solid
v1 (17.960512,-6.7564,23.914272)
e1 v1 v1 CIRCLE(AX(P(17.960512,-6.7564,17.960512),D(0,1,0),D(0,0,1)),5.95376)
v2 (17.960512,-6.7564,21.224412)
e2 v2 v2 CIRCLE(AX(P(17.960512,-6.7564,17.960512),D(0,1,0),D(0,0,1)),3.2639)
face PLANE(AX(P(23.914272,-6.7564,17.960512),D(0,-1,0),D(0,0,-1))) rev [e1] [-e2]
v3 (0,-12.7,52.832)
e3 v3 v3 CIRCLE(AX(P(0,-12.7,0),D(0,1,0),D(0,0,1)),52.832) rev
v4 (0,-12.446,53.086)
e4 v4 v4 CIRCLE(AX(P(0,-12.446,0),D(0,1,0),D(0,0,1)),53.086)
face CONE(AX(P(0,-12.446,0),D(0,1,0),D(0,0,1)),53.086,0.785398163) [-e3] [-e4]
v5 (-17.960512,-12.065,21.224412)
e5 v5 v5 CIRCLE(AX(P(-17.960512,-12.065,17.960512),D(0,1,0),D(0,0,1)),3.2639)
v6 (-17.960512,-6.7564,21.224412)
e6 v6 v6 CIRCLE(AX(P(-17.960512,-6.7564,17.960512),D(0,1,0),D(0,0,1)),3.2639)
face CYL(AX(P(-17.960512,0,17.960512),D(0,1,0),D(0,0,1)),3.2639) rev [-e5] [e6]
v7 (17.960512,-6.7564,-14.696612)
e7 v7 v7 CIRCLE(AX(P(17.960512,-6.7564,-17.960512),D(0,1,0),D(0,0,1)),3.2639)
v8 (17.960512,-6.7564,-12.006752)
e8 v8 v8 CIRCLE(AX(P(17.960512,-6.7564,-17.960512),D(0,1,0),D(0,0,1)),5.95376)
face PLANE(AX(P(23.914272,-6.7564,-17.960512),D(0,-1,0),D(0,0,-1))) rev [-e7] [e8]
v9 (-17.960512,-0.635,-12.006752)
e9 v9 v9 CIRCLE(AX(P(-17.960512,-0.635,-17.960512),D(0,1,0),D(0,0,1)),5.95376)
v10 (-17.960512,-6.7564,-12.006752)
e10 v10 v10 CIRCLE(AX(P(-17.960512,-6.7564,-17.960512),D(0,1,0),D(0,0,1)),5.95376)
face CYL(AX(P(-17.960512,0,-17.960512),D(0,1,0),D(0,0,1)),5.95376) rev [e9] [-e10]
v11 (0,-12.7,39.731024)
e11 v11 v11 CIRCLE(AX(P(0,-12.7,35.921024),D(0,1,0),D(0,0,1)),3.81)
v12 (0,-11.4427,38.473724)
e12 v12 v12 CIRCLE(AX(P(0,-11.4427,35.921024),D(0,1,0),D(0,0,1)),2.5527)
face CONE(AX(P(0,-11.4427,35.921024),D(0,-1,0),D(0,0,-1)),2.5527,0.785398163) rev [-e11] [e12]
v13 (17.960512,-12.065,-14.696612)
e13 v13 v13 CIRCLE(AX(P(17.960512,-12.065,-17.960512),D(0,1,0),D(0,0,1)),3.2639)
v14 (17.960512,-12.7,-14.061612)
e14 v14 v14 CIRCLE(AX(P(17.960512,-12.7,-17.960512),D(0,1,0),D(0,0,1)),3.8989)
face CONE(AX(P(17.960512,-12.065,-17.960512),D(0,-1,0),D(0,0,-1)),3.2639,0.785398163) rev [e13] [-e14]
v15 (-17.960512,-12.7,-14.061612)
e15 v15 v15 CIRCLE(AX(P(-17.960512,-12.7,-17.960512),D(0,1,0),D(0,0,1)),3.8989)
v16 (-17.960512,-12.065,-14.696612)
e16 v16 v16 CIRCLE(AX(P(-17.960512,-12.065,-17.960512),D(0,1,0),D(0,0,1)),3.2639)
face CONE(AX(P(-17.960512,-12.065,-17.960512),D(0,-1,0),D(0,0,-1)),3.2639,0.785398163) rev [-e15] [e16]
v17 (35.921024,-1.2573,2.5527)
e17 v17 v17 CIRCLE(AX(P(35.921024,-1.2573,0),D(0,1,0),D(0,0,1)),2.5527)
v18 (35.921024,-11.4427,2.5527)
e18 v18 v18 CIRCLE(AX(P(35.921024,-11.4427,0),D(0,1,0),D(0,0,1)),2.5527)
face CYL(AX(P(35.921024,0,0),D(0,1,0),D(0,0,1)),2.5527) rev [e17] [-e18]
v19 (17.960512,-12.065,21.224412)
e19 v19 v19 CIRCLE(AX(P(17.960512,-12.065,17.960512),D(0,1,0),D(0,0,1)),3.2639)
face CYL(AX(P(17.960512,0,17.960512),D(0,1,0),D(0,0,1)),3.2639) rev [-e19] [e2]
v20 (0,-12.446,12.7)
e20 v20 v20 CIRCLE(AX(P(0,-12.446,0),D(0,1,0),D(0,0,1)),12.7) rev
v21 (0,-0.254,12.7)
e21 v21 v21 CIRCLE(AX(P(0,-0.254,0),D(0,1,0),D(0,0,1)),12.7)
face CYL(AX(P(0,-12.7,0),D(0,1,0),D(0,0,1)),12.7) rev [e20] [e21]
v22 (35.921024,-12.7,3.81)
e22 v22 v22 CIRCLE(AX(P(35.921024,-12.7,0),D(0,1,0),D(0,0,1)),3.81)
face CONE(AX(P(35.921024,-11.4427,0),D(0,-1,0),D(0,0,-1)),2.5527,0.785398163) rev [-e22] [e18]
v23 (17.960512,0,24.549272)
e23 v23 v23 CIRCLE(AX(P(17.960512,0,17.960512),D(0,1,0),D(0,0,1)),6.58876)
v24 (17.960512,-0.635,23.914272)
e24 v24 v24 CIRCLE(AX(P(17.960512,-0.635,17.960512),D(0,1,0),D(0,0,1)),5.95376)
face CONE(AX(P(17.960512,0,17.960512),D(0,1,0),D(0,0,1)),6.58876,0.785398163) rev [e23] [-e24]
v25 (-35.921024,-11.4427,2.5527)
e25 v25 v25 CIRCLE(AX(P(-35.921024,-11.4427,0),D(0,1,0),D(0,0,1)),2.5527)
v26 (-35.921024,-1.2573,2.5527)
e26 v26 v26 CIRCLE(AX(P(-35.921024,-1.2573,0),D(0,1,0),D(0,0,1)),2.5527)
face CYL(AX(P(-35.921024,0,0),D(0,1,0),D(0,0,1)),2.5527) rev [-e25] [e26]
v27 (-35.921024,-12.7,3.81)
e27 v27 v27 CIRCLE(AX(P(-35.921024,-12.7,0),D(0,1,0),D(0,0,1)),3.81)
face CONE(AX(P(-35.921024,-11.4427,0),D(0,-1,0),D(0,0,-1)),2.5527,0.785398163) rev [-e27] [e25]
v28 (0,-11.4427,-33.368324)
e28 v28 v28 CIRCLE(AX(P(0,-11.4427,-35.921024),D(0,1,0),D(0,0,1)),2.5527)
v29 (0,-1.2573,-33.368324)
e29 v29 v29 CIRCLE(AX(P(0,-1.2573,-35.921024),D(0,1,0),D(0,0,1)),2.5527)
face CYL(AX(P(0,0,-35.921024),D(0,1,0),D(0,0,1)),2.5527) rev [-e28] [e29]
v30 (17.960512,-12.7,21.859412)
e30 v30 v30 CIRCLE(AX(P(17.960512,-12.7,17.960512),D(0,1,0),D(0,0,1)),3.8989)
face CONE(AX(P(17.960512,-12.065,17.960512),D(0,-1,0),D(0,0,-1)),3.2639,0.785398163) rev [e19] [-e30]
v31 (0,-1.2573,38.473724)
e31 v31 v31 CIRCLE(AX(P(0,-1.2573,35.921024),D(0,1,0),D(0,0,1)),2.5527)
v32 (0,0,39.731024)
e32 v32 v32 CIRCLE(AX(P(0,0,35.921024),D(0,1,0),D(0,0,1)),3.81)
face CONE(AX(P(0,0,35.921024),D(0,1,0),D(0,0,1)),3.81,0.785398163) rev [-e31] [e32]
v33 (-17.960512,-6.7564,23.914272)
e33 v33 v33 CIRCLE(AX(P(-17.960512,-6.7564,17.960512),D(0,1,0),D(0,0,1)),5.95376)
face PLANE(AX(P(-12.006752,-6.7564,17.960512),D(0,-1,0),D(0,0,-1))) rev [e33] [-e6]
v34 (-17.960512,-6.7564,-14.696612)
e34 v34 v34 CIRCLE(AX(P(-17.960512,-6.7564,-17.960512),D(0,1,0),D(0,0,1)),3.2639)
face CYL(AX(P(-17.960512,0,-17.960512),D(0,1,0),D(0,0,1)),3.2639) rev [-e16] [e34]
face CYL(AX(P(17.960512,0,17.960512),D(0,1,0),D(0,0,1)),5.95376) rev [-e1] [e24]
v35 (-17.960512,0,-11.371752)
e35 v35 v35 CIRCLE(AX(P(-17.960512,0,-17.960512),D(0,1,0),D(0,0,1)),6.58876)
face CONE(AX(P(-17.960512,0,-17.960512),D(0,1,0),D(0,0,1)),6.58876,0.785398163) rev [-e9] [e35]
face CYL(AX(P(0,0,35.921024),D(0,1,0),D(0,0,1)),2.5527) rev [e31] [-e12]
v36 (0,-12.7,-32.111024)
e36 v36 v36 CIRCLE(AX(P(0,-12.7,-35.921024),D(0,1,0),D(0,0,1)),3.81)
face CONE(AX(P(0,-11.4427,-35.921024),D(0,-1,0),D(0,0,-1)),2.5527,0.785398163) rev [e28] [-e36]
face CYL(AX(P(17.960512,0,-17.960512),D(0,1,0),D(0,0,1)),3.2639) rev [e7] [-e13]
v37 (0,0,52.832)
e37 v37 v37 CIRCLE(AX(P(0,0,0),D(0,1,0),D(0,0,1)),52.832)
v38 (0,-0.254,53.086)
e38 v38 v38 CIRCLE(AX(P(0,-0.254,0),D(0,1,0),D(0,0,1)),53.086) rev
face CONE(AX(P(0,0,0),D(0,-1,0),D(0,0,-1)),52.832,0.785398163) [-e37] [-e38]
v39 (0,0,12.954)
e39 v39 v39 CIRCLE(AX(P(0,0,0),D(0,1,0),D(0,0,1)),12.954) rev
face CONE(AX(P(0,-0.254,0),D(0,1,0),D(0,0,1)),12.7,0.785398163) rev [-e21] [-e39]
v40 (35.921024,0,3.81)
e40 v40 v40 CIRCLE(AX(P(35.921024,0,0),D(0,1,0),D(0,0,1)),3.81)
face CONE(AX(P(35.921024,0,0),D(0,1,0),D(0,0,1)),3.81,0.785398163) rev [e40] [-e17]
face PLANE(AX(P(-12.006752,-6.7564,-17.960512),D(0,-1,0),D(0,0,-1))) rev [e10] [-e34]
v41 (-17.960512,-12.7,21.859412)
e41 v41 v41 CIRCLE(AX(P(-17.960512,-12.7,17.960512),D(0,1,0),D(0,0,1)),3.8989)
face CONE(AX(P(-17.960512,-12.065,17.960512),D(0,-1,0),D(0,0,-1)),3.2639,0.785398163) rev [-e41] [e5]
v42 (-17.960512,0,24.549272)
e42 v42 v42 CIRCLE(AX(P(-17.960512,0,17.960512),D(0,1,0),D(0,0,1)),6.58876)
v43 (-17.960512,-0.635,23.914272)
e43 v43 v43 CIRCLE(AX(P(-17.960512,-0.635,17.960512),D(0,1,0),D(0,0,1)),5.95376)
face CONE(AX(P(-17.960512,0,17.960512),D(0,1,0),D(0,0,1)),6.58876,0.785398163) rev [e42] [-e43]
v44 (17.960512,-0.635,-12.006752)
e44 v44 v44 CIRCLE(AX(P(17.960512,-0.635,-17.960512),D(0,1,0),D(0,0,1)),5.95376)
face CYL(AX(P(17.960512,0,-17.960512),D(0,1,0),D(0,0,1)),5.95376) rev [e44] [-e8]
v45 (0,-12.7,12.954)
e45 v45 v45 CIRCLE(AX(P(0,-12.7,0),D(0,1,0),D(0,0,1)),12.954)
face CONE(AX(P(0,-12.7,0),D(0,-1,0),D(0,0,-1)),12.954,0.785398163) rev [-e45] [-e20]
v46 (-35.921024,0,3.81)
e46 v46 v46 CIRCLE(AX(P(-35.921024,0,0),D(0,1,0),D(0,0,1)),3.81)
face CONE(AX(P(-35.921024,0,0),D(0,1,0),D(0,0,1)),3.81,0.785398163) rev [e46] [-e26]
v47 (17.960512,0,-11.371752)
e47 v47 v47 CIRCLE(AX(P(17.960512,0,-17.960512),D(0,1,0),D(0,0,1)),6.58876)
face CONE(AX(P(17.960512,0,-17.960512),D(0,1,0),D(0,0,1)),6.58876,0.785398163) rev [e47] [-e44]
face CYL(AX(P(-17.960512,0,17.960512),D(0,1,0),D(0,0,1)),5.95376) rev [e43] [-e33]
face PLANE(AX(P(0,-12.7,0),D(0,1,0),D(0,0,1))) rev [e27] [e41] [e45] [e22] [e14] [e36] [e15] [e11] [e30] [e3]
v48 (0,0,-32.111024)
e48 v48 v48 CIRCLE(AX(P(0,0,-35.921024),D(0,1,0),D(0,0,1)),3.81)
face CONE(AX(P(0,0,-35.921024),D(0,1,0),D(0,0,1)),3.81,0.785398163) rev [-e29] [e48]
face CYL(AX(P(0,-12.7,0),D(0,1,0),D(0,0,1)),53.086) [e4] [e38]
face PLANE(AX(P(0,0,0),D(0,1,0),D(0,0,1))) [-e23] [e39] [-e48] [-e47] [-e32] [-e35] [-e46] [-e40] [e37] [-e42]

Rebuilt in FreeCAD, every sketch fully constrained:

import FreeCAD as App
import Part
import Sketcher
Q = App.Units.Quantity


def edges_at(feature, points):
    """Names of the edges that pass closest to the given points."""
    edges = feature.Shape.Edges
    near = lambda p: min(range(len(edges)), key=lambda i: edges[i].distToShape(Part.Vertex(*p))[0])
    return sorted({f"Edge{near(p) + 1}" for p in points})


def add_polygon(sketch, points):
    """Adds a closed chain of lines whose ends are joined by coincident constraints."""
    first, n = sketch.GeometryCount, len(points)
    for a, b in zip(points, points[1:] + points[:1]):
        sketch.addGeometry(Part.LineSegment(App.Vector(*a, 0), App.Vector(*b, 0)), False)
    for i in range(n):
        sketch.addConstraint(Sketcher.Constraint("Coincident", first + i, 2, first + (i + 1) % n, 1))

doc = App.newDocument("Part")
params = doc.addObject("Spreadsheet::Sheet", "Params")
for row, (alias, value) in enumerate([
    ("sketch1_diameter", "1 in"),
    ("sketch1_diameter2", "4.18 in"),
    ("pad1_length", "0.5 in"),
    ("sketch2_width", "0.5 in"),
    ("sketch2_height", "0.15 in"),
    ("sketch2_width2", "0.401 in"),
    ("groove_angle", "360 deg"),
    ("linearpattern_pitch", "2 in"),
    ("linearpattern2_pitch", "71.842049 mm"),
    ("linearpattern3_pitch", "2 in"),
    ("sketch3_width", "0.5 in"),
    ("sketch3_width2", "0.241 in"),
    ("sketch3_width3", "0.209 in"),
    ("groove2_angle", "360 deg"),
    ("linearpattern4_pitch", "35.921024 mm"),
    ("linearpattern5_pitch", "2 in"),
    ("linearpattern6_pitch", "35.921024 mm"),
    ("chamfer_size", "0.01 in"),
], start=1):
    params.set(f"A{row}", alias)
    params.set(f"B{row}", "=" + value)
    params.setAlias(f"B{row}", alias)

body = doc.addObject("PartDesign::Body", "Body")

# Sketch on XZ plane
sketch1 = body.newObject("Sketcher::SketchObject", "Sketch")
sketch1.AttachmentSupport = (doc.getObject("XZ_Plane"), [""])
sketch1.MapMode = "FlatFace"
sketch1.addGeometry(Part.Circle(App.Vector(0, 0, 0), App.Vector(0, 0, 1), 53), False)
sketch1.addGeometry(Part.Circle(App.Vector(0, 0, 0), App.Vector(0, 0, 1), 13), False)
sketch1.addConstraint(Sketcher.Constraint("Coincident", 0, 3, -1, 1))
sketch1.addConstraint(Sketcher.Constraint("Coincident", 1, 3, -1, 1))
sketch1.addConstraint(Sketcher.Constraint("Diameter", 1, Q("1 in")))
sketch1.addConstraint(Sketcher.Constraint("Diameter", 0, Q("4.18 in")))
sketch1.setExpression("Constraints[2]", "Params.sketch1_diameter")
sketch1.setExpression("Constraints[3]", "Params.sketch1_diameter2")
pad1 = body.newObject("PartDesign::Pad", "Pad")
pad1.Profile = sketch1
pad1.setExpression("Length", "Params.pad1_length")

# Sketch on YZ plane
sketch2 = body.newObject("Sketcher::SketchObject", "Sketch001")
sketch2.AttachmentSupport = (doc.getObject("YZ_Plane"), [""])
sketch2.MapMode = "FlatFace"
add_polygon(sketch2, [(-12.7, 35.9), (0, 35.9), (0, 39.7), (-1.3, 38.5), (-11.4, 38.5), (-12.7, 39.7)])  # lines 0-5
sketch2.addGeometry(Part.LineSegment(App.Vector(0, 35.9, 0), App.Vector(-12.7, 35.9, 0)), True)  # axis
sketch2.addConstraint(Sketcher.Constraint("Horizontal", 0))
sketch2.addConstraint(Sketcher.Constraint("Vertical", 1))
sketch2.addConstraint(Sketcher.Constraint("Horizontal", 3))
sketch2.addConstraint(Sketcher.Constraint("Vertical", 5))
sketch2.addConstraint(Sketcher.Constraint("Horizontal", 6))
sketch2.addConstraint(Sketcher.Constraint("Coincident", 6, 1, 0, 2))
sketch2.addConstraint(Sketcher.Constraint("PointOnObject", 0, 2, -2))
sketch2.addConstraint(Sketcher.Constraint("Perpendicular", 2, 4))
sketch2.addConstraint(Sketcher.Constraint("Horizontal", 1, 2, 4, 2))
sketch2.addConstraint(Sketcher.Constraint("Vertical", 4, 2, 6, 2))
sketch2.addConstraint(Sketcher.Constraint("Equal", 2, 4))
sketch2.addConstraint(Sketcher.Constraint("DistanceX", 0, 1, 0, 2, Q("0.5 in")))
sketch2.addConstraint(Sketcher.Constraint("DistanceY", 1, 1, 1, 2, Q("0.15 in")))
sketch2.addConstraint(Sketcher.Constraint("DistanceX", 3, 2, 3, 1, Q("0.401 in")))
sketch2.addConstraint(Sketcher.Constraint("DistanceY", -1, 1, 0, 2, Q("35.921024 mm")))
sketch2.setExpression("Constraints[17]", "Params.sketch2_width")
sketch2.setExpression("Constraints[18]", "Params.sketch2_height")
sketch2.setExpression("Constraints[19]", "Params.sketch2_width2")
groove = body.newObject("PartDesign::Groove", "Groove")
groove.Profile = sketch2
groove.ReferenceAxis = (sketch2, ["Axis0"])
groove.setExpression("Angle", "Params.groove_angle")
doc.recompute()

datumline = body.newObject("PartDesign::Line", "DatumLine")
datumline.Placement = App.Placement(App.Vector(0, 0, 0), App.Rotation(App.Vector(0, 0, 1), App.Vector(-0.707106781, 0, -0.707106781)))
linearpattern = body.newObject("PartDesign::LinearPattern", "LinearPattern")
linearpattern.Originals = [groove]
linearpattern.Direction = (datumline, [""])
linearpattern.Mode = "offset"
linearpattern.setExpression("Offset", "Params.linearpattern_pitch")
linearpattern.Occurrences = 2
body.Tip = linearpattern
doc.recompute()

linearpattern2 = body.newObject("PartDesign::LinearPattern", "LinearPattern001")
linearpattern2.Originals = [groove]
linearpattern2.Direction = (doc.getObject("Z_Axis"), [""])
linearpattern2.Mode = "offset"
linearpattern2.setExpression("Offset", "Params.linearpattern2_pitch")
linearpattern2.Occurrences = 2
linearpattern2.Reversed = True
body.Tip = linearpattern2
doc.recompute()

datumline2 = body.newObject("PartDesign::Line", "DatumLine001")
datumline2.Placement = App.Placement(App.Vector(0, 0, 0), App.Rotation(App.Vector(0, 0, 1), App.Vector(0.707106781, 0, -0.707106781)))
linearpattern3 = body.newObject("PartDesign::LinearPattern", "LinearPattern002")
linearpattern3.Originals = [groove]
linearpattern3.Direction = (datumline2, [""])
linearpattern3.Mode = "offset"
linearpattern3.setExpression("Offset", "Params.linearpattern3_pitch")
linearpattern3.Occurrences = 2
body.Tip = linearpattern3

# Sketch on YZ plane
sketch3 = body.newObject("Sketcher::SketchObject", "Sketch002")
sketch3.AttachmentSupport = (doc.getObject("YZ_Plane"), [""])
sketch3.MapMode = "FlatFace"
sketch3.AttachmentOffset = App.Placement(App.Vector(0, 0, -17.960512), App.Rotation())
add_polygon(sketch3, [(-12.7, 18), (0, 18), (0, 24.5), (-0.6, 23.9), (-6.8, 23.9), (-6.8, 21.2), (-12.1, 21.2), (-12.7, 21.9)])  # lines 0-7
sketch3.addGeometry(Part.LineSegment(App.Vector(0, 18, 0), App.Vector(-12.7, 18, 0)), True)  # axis
sketch3.addConstraint(Sketcher.Constraint("Horizontal", 0))
sketch3.addConstraint(Sketcher.Constraint("Vertical", 1))
sketch3.addConstraint(Sketcher.Constraint("Horizontal", 3))
sketch3.addConstraint(Sketcher.Constraint("Vertical", 4))
sketch3.addConstraint(Sketcher.Constraint("Horizontal", 5))
sketch3.addConstraint(Sketcher.Constraint("Vertical", 7))
sketch3.addConstraint(Sketcher.Constraint("Horizontal", 8))
sketch3.addConstraint(Sketcher.Constraint("Coincident", 8, 1, 0, 2))
sketch3.addConstraint(Sketcher.Constraint("PointOnObject", 0, 2, -2))
sketch3.addConstraint(Sketcher.Constraint("Perpendicular", 2, 6))
sketch3.addConstraint(Sketcher.Constraint("Vertical", 6, 2, 8, 2))
sketch3.addConstraint(Sketcher.Constraint("Equal", 2, 6))
sketch3.addConstraint(Sketcher.Constraint("DistanceX", 0, 1, 0, 2, Q("0.5 in")))
sketch3.addConstraint(Sketcher.Constraint("Angle", 2, Q("-135 deg")))
sketch3.addConstraint(Sketcher.Constraint("DistanceX", 3, 2, 3, 1, Q("0.241 in")))
sketch3.addConstraint(Sketcher.Constraint("DistanceX", 5, 2, 5, 1, Q("0.209 in")))
sketch3.addConstraint(Sketcher.Constraint("DistanceY", 1, 1, 1, 2, Q("0.2594 in")))
sketch3.addConstraint(Sketcher.Constraint("DistanceY", 4, 2, 4, 1, Q("0.1059 in")))
sketch3.addConstraint(Sketcher.Constraint("DistanceY", -1, 1, 0, 2, Q("17.960512 mm")))
sketch3.setExpression("Constraints[20]", "Params.sketch3_width")
sketch3.setExpression("Constraints[22]", "Params.sketch3_width2")
sketch3.setExpression("Constraints[23]", "Params.sketch3_width3")
groove2 = body.newObject("PartDesign::Groove", "Groove001")
groove2.Profile = sketch3
groove2.ReferenceAxis = (sketch3, ["Axis0"])
groove2.setExpression("Angle", "Params.groove2_angle")
doc.recompute()

linearpattern4 = body.newObject("PartDesign::LinearPattern", "LinearPattern003")
linearpattern4.Originals = [groove2]
linearpattern4.Direction = (doc.getObject("Z_Axis"), [""])
linearpattern4.Mode = "offset"
linearpattern4.setExpression("Offset", "Params.linearpattern4_pitch")
linearpattern4.Occurrences = 2
linearpattern4.Reversed = True
body.Tip = linearpattern4
doc.recompute()

datumline3 = body.newObject("PartDesign::Line", "DatumLine002")
datumline3.Placement = App.Placement(App.Vector(0, 0, 0), App.Rotation(App.Vector(0, 0, 1), App.Vector(0.707106781, 0, -0.707106781)))
linearpattern5 = body.newObject("PartDesign::LinearPattern", "LinearPattern004")
linearpattern5.Originals = [groove2]
linearpattern5.Direction = (datumline3, [""])
linearpattern5.Mode = "offset"
linearpattern5.setExpression("Offset", "Params.linearpattern5_pitch")
linearpattern5.Occurrences = 2
body.Tip = linearpattern5
doc.recompute()

linearpattern6 = body.newObject("PartDesign::LinearPattern", "LinearPattern005")
linearpattern6.Originals = [groove2]
linearpattern6.Direction = (doc.getObject("X_Axis"), [""])
linearpattern6.Mode = "offset"
linearpattern6.setExpression("Offset", "Params.linearpattern6_pitch")
linearpattern6.Occurrences = 2
body.Tip = linearpattern6
doc.recompute()

chamfer = body.newObject("PartDesign::Chamfer", "Chamfer")
chamfer.Base = (linearpattern6, edges_at(linearpattern6, [
    (-53.086, 0, 0),
    (-53.086, -12.7, 0),
    (-12.7, -12.7, 0),
    (-12.7, 0, 0),
]))
chamfer.setExpression("Size", "Params.chamfer_size")

doc.recompute()
